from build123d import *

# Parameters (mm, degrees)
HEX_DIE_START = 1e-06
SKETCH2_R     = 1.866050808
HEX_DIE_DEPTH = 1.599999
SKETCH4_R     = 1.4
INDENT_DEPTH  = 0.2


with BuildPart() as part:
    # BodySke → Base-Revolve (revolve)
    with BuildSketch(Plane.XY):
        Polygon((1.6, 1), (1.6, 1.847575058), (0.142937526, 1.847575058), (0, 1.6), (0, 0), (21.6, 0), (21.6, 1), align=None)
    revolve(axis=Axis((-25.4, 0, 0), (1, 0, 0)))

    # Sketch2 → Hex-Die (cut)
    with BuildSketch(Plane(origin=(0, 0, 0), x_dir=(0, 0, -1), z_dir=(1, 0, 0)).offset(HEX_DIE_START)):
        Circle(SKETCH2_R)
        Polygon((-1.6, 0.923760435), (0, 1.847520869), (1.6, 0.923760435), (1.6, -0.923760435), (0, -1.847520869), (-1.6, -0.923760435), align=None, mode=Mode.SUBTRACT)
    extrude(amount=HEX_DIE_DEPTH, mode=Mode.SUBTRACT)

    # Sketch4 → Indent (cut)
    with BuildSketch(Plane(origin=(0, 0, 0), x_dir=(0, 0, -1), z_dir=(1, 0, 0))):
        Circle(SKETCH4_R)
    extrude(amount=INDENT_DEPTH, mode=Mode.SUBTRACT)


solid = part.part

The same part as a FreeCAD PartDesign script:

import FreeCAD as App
import Part
import Sketcher
from FreeCAD import Vector
Q = App.Units.Quantity

doc = App.newDocument("Part")
body = doc.addObject("PartDesign::Body", "Body")

sketch1 = body.newObject("Sketcher::SketchObject", "Sketch")
sketch1.AttachmentSupport = (doc.getObject("XY_Plane"), [""])
sketch1.MapMode = "FlatFace"
sketch1.addGeometry([
    Part.LineSegment(Vector(1.6, 1, 0), Vector(1.6, 1.85, 0)),
    Part.LineSegment(Vector(1.6, 1.85, 0), Vector(0.14, 1.85, 0)),
    Part.LineSegment(Vector(0.14, 1.85, 0), Vector(0, 1.6, 0)),
    Part.LineSegment(Vector(0, 1.6, 0), Vector(0, 0, 0)),
    Part.LineSegment(Vector(0, 0, 0), Vector(21.6, 0, 0)),
    Part.LineSegment(Vector(21.6, 0, 0), Vector(21.6, 1, 0)),
    Part.LineSegment(Vector(21.6, 1, 0), Vector(1.6, 1, 0)),
], False)
sketch1.addConstraint([
    Sketcher.Constraint("Coincident", 0, 2, 1, 1),
    Sketcher.Constraint("Coincident", 1, 2, 2, 1),
    Sketcher.Constraint("Coincident", 2, 2, 3, 1),
    Sketcher.Constraint("Coincident", 3, 2, 4, 1),
    Sketcher.Constraint("Coincident", 4, 2, 5, 1),
    Sketcher.Constraint("Coincident", 5, 2, 6, 1),
    Sketcher.Constraint("Coincident", 6, 2, 0, 1),
    Sketcher.Constraint("Vertical", 0),
    Sketcher.Constraint("Horizontal", 1),
    Sketcher.Constraint("Vertical", 3),
    Sketcher.Constraint("Horizontal", 4),
    Sketcher.Constraint("Vertical", 5),
    Sketcher.Constraint("Horizontal", 6),
    Sketcher.Constraint("Coincident", 3, 2, -1, 1),
    Sketcher.Constraint("DistanceX", 6, 2, 6, 1, Q("20 mm")),
    Sketcher.Constraint("DistanceY", 5, 1, 5, 2, Q("1 mm")),
    Sketcher.Constraint("Angle", 2, Q("-120 deg")),
    Sketcher.Constraint("DistanceX", 4, 1, 4, 2, Q("21.6 mm")),
    Sketcher.Constraint("DistanceY", 3, 2, 3, 1, Q("1.6 mm")),
    Sketcher.Constraint("DistanceX", 1, 2, 1, 1, Q("1.457062 mm")),
])
revolution = body.newObject("PartDesign::Revolution", "Revolution")
revolution.Profile = sketch1
revolution.ReferenceAxis = (sketch1, ["H_Axis"])
revolution.Angle = 360

sketch2 = body.newObject("Sketcher::SketchObject", "Sketch001")
sketch2.AttachmentSupport = (doc.getObject("YZ_Plane"), [""])
sketch2.MapMode = "FlatFace"
sketch2.AttachmentOffset = App.Placement(Vector(0, 0, 0.000001), App.Rotation())
sketch2.addGeometry([
    Part.Circle(Vector(0, 0, 0), Vector(0, 0, 1), 1.9),
    Part.LineSegment(Vector(-0.9, 1.6, 0), Vector(0.9, 1.6, 0)),
    Part.LineSegment(Vector(0.9, 1.6, 0), Vector(1.8, 0, 0)),
    Part.LineSegment(Vector(1.8, 0, 0), Vector(0.9, -1.6, 0)),
    Part.LineSegment(Vector(0.9, -1.6, 0), Vector(-0.9, -1.6, 0)),
    Part.LineSegment(Vector(-0.9, -1.6, 0), Vector(-1.8, 0, 0)),
    Part.LineSegment(Vector(-1.8, 0, 0), Vector(-0.9, 1.6, 0)),
], False)
sketch2.addConstraint([
    Sketcher.Constraint("Coincident", 1, 2, 2, 1),
    Sketcher.Constraint("Coincident", 2, 2, 3, 1),
    Sketcher.Constraint("Coincident", 3, 2, 4, 1),
    Sketcher.Constraint("Coincident", 4, 2, 5, 1),
    Sketcher.Constraint("Coincident", 5, 2, 6, 1),
    Sketcher.Constraint("Coincident", 6, 2, 1, 1),
    Sketcher.Constraint("Horizontal", 1),
    Sketcher.Constraint("Horizontal", 4),
    Sketcher.Constraint("Coincident", 0, 3, -1, 1),
    Sketcher.Constraint("Symmetric", 1, 2, 4, 2, -1, 1),
    Sketcher.Constraint("Symmetric", 2, 2, 5, 2, -1, 1),
    Sketcher.Constraint("PointOnObject", 2, 2, -1),
    Sketcher.Constraint("Parallel", 3, 6),
    Sketcher.Constraint("Vertical", 1, 2, 3, 2),
    Sketcher.Constraint("Angle", 2, Q("-60 deg")),
    Sketcher.Constraint("Diameter", 0, Q("3.732102 mm")),
    Sketcher.Constraint("DistanceY", -1, 1, 1, 2, Q("1.6 mm")),
    Sketcher.Constraint("DistanceX", 1, 1, 1, 2, Q("1.847521 mm")),
])
pocket1 = body.newObject("PartDesign::Pocket", "Pocket")
pocket1.Profile = sketch2
pocket1.Length = 1.599999
pocket1.Reversed = True

sketch3 = body.newObject("Sketcher::SketchObject", "Sketch002")
sketch3.AttachmentSupport = (doc.getObject("YZ_Plane"), [""])
sketch3.MapMode = "FlatFace"
sketch3.addGeometry(Part.Circle(Vector(0, 0, 0), Vector(0, 0, 1), 1.4), False)
sketch3.addConstraint([
    Sketcher.Constraint("Coincident", 0, 3, -1, 1),
    Sketcher.Constraint("Diameter", 0, Q("2.8 mm")),
])
pocket2 = body.newObject("PartDesign::Pocket", "Pocket001")
pocket2.Profile = sketch3
pocket2.Length = 0.2
pocket2.Reversed = True

doc.recompute()
